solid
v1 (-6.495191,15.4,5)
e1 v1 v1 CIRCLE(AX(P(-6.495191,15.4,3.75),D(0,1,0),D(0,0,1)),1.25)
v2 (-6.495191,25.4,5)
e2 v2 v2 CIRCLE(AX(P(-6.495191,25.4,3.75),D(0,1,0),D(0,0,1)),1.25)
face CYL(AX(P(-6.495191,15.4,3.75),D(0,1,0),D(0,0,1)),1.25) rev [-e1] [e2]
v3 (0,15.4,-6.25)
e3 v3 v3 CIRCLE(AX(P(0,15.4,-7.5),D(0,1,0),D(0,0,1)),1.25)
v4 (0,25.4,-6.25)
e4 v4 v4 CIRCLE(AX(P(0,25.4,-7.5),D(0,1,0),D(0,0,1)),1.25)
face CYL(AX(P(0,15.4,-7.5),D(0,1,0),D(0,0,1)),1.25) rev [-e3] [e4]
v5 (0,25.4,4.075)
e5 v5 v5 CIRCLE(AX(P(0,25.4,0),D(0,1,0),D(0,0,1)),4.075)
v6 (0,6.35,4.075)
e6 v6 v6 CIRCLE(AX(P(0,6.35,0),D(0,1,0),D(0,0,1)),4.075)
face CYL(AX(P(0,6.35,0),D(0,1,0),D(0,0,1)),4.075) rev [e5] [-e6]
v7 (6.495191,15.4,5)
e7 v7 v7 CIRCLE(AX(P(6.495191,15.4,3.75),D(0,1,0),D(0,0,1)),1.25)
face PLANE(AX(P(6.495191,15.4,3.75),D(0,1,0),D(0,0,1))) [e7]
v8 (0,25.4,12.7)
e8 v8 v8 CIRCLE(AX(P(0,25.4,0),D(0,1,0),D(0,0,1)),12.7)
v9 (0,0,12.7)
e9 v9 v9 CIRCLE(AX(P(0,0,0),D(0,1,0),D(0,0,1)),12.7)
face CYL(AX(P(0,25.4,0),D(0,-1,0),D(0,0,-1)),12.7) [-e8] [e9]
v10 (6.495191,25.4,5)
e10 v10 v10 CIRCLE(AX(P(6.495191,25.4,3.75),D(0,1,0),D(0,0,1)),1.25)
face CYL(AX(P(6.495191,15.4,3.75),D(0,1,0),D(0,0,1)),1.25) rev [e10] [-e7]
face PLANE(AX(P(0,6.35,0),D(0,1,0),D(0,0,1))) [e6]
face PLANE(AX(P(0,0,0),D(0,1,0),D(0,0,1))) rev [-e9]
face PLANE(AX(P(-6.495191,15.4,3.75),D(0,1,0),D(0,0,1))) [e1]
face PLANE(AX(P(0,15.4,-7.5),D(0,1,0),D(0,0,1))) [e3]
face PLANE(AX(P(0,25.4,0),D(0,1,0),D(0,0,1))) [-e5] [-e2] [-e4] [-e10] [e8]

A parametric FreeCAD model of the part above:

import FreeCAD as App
import Part
import Sketcher
from FreeCAD import Vector

doc = App.newDocument("Part")
params = doc.addObject("Spreadsheet::Sheet", "Params")
for row, (alias, value) in enumerate([
    ("sketch1_diameter", "25.4 mm"),
    ("pad1_length", "25.4 mm"),
    ("sketch2_diameter", "8.15 mm"),
    ("pocket1_length", "19.05 mm"),
    ("sketch3_diameter", "2.5 mm"),
    ("pocket2_length", "10 mm"),
], start=1):
    params.set(f"A{row}", alias)
    params.set(f"B{row}", "=" + value)
    params.setAlias(f"B{row}", alias)

body = doc.addObject("PartDesign::Body", "Body")

sketch1 = doc.addObject("Sketcher::SketchObject", "Sketch")
body.addObject(sketch1)
sketch1.AttachmentSupport = (doc.XZ_Plane, [""])
sketch1.MapMode = "FlatFace"
sketch1.addGeometry(Part.Circle(Vector(0, 0, 0), Vector(0, 0, 1), 13), False)
sketch1.addConstraint([
    Sketcher.Constraint("Coincident", 0, 3, -1, 1),
    Sketcher.Constraint("Diameter", 0, 25.4),
])
sketch1.setExpression("Constraints[1]", "Params.sketch1_diameter")
pad1 = doc.addObject("PartDesign::Pad", "Pad")
body.addObject(pad1)
pad1.Profile = sketch1
pad1.setExpression("Length", "Params.pad1_length")
pad1.Reversed = True

sketch2 = doc.addObject("Sketcher::SketchObject", "Sketch001")
body.addObject(sketch2)
sketch2.AttachmentSupport = (doc.XZ_Plane, [""])
sketch2.MapMode = "FlatFace"
sketch2.AttachmentOffset = App.Placement(Vector(0, 0, -25.4), App.Rotation())
sketch2.addGeometry(Part.Circle(Vector(0, 0, 0), Vector(0, 0, 1), 4.1), False)
sketch2.addConstraint([
    Sketcher.Constraint("Coincident", 0, 3, -1, 1),
    Sketcher.Constraint("Diameter", 0, 8.15),
])
sketch2.setExpression("Constraints[1]", "Params.sketch2_diameter")
pocket1 = doc.addObject("PartDesign::Pocket", "Pocket")
body.addObject(pocket1)
pocket1.Profile = sketch2
pocket1.setExpression("Length", "Params.pocket1_length")
pocket1.Reversed = True

sketch3 = doc.addObject("Sketcher::SketchObject", "Sketch002")
body.addObject(sketch3)
sketch3.AttachmentSupport = (doc.XZ_Plane, [""])
sketch3.MapMode = "FlatFace"
sketch3.AttachmentOffset = App.Placement(Vector(0, 0, -25.4), App.Rotation())
sketch3.addGeometry([
    Part.Circle(Vector(0, -7.5, 0), Vector(0, 0, 1), 1.2),
    Part.Circle(Vector(6.5, 3.8, 0), Vector(0, 0, 1), 1.2),
    Part.Circle(Vector(-6.5, 3.8, 0), Vector(0, 0, 1), 1.2),
], False)
sketch3.addConstraint([
    Sketcher.Constraint("Equal", 0, 1),
    Sketcher.Constraint("Equal", 1, 2),
    Sketcher.Constraint("Symmetric", 1, 3, 2, 3, -2),
    Sketcher.Constraint("PointOnObject", 0, 3, -2),
    Sketcher.Constraint("Diameter", 0, 2.5),
    Sketcher.Constraint("DistanceY", 0, 3, -1, 1, 7.5),
    Sketcher.Constraint("DistanceY", -1, 1, 1, 3, 3.75),
    Sketcher.Constraint("DistanceX", -1, 1, 1, 3, 6.495191),
])
sketch3.setExpression("Constraints[4]", "Params.sketch3_diameter")
pocket2 = doc.addObject("PartDesign::Pocket", "Pocket001")
body.addObject(pocket2)
pocket2.Profile = sketch3
pocket2.setExpression("Length", "Params.pocket2_length")
pocket2.Reversed = True

doc.recompute()
